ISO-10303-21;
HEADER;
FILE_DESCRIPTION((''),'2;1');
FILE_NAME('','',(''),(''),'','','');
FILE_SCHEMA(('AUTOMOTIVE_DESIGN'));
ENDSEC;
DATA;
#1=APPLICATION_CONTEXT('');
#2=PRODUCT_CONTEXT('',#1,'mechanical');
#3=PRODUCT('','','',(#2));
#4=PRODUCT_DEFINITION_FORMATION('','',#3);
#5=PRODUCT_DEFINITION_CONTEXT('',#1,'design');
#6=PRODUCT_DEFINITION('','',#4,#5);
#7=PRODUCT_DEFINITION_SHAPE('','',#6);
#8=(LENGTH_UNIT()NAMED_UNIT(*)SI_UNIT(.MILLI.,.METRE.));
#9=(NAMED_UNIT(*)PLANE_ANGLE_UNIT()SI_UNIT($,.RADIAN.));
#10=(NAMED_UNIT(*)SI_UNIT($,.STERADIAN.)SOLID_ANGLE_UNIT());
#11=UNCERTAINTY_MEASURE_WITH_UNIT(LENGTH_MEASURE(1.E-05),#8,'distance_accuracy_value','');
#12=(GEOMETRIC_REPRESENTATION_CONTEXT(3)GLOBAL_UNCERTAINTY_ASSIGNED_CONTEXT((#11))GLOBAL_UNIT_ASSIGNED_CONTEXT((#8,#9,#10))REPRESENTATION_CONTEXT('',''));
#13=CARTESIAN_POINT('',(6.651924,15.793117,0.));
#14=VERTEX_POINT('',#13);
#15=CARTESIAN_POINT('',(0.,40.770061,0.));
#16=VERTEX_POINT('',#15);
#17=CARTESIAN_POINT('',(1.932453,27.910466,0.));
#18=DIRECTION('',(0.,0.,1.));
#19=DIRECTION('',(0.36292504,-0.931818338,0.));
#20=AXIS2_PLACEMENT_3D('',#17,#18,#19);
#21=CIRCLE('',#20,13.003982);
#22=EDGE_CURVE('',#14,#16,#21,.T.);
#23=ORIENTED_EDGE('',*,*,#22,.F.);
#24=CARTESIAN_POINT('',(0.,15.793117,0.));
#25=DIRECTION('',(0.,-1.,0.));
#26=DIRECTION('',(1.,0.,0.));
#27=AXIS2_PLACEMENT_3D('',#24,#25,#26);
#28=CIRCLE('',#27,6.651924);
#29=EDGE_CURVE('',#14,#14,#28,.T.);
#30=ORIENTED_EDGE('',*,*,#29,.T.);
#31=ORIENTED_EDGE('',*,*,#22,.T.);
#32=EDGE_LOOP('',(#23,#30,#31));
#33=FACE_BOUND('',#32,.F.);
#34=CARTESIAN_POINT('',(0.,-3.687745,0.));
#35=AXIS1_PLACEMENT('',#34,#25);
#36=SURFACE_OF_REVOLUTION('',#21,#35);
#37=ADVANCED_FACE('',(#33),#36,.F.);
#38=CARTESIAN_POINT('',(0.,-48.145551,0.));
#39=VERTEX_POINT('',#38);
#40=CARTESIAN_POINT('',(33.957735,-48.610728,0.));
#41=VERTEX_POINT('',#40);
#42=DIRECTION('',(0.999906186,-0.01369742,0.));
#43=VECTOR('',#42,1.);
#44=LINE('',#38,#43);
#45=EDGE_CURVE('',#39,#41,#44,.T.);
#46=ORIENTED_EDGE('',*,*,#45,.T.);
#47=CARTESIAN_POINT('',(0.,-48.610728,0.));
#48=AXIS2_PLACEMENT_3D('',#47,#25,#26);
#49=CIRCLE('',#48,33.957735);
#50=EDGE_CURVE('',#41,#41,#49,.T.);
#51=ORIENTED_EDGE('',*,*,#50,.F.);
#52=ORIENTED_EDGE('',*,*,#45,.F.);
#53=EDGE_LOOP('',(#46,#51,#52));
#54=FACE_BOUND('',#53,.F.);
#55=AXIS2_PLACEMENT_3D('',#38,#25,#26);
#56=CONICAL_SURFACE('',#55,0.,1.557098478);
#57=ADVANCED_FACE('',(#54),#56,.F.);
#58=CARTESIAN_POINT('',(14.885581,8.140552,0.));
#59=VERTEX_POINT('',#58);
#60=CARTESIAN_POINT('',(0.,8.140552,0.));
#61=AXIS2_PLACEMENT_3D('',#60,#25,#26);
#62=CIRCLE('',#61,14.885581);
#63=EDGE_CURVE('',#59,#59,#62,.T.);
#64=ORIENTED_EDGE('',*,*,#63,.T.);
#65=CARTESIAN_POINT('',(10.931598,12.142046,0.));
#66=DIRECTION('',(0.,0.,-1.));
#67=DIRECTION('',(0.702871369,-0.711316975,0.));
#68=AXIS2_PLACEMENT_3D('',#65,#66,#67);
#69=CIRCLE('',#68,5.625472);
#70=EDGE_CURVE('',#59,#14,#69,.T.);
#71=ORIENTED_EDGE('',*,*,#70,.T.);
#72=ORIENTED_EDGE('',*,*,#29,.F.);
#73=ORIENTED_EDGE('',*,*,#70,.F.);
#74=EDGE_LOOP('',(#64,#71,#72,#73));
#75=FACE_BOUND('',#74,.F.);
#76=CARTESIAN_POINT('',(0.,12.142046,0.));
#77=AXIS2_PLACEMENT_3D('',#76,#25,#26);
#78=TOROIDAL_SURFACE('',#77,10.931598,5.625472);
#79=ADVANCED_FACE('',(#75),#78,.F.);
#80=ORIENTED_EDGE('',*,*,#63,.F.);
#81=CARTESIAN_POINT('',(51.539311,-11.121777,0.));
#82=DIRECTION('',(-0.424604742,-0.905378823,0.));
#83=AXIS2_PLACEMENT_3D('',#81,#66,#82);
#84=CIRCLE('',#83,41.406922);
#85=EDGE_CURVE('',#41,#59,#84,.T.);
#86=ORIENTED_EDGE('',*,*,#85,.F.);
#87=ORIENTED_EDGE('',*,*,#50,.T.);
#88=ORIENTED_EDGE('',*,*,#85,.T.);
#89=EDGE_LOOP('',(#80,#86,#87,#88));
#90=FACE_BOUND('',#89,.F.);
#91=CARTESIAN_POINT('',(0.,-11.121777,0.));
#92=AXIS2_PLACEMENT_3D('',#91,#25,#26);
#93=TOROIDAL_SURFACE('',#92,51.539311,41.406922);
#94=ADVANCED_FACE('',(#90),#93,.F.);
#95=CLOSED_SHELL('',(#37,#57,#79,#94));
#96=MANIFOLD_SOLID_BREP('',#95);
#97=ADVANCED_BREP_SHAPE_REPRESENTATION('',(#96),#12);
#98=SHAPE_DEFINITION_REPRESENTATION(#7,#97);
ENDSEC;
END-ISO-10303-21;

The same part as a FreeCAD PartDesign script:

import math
import FreeCAD as App
import Part
import Sketcher

doc = App.newDocument("Part")
body = doc.addObject("PartDesign::Body", "Body")

sketch1 = body.newObject("Sketcher::SketchObject", "Sketch")
sketch1.AttachmentSupport = (doc.getObject("XY_Plane"), [""])
sketch1.MapMode = "FlatFace"
sketch1.addGeometry(Part.ArcOfCircle(Part.Circle(App.Vector(2, 28, 0), App.Vector(0, 0, 1), 13), math.radians(-69), math.radians(99)), False)
sketch1.addGeometry(Part.LineSegment(App.Vector(0, 41, 0), App.Vector(0, -48, 0)), False)
sketch1.addGeometry(Part.LineSegment(App.Vector(0, -48, 0), App.Vector(34, -49, 0)), False)
sketch1.addGeometry(Part.ArcOfCircle(Part.Circle(App.Vector(52, -11, 0), App.Vector(0, 0, 1), 41), math.radians(152), math.radians(245)), False)
sketch1.addGeometry(Part.ArcOfCircle(Part.Circle(App.Vector(11, 12, 0), App.Vector(0, 0, 1), 6), math.radians(140), math.radians(315)), False)
sketch1.addConstraint(Sketcher.Constraint("Coincident", 0, 2, 1, 1))
sketch1.addConstraint(Sketcher.Constraint("Coincident", 1, 2, 2, 1))
sketch1.addConstraint(Sketcher.Constraint("Coincident", 2, 2, 3, 2))
sketch1.addConstraint(Sketcher.Constraint("Coincident", 3, 1, 4, 2))
sketch1.addConstraint(Sketcher.Constraint("Coincident", 4, 1, 0, 1))
sketch1.addConstraint(Sketcher.Constraint("Vertical", 1))
sketch1.addConstraint(Sketcher.Constraint("PointOnObject", 0, 2, -2))
sketch1.addConstraint(Sketcher.Constraint("Radius", 4, 5.625472))
sketch1.addConstraint(Sketcher.Constraint("Radius", 0, 13.003982))
sketch1.addConstraint(Sketcher.Constraint("Radius", 3, 41.406922))
sketch1.addConstraint(Sketcher.Constraint("DistanceY", 1, 2, 1, 1, 88.915612))
sketch1.addConstraint(Sketcher.Constraint("Distance", 2, 33.960921))
sketch1.addConstraint(Sketcher.Constraint("DistanceX", -1, 1, 3, 3, 51.539311))
sketch1.addConstraint(Sketcher.Constraint("DistanceY", -1, 1, 0, 2, 40.770061))
sketch1.addConstraint(Sketcher.Constraint("DistanceY", 2, 2, -1, 1, 48.610728))
sketch1.addConstraint(Sketcher.Constraint("DistanceX", -1, 1, 3, 1, 14.885581))
sketch1.addConstraint(Sketcher.Constraint("DistanceY", 4, 3, 0, 3, 15.768421))
sketch1.addConstraint(Sketcher.Constraint("DistanceX", 0, 3, 2, 2, 32.025282))
revolution = body.newObject("PartDesign::Revolution", "Revolution")
revolution.Profile = sketch1
revolution.ReferenceAxis = (sketch1, ["V_Axis"])
revolution.Angle = 360

doc.recompute()
